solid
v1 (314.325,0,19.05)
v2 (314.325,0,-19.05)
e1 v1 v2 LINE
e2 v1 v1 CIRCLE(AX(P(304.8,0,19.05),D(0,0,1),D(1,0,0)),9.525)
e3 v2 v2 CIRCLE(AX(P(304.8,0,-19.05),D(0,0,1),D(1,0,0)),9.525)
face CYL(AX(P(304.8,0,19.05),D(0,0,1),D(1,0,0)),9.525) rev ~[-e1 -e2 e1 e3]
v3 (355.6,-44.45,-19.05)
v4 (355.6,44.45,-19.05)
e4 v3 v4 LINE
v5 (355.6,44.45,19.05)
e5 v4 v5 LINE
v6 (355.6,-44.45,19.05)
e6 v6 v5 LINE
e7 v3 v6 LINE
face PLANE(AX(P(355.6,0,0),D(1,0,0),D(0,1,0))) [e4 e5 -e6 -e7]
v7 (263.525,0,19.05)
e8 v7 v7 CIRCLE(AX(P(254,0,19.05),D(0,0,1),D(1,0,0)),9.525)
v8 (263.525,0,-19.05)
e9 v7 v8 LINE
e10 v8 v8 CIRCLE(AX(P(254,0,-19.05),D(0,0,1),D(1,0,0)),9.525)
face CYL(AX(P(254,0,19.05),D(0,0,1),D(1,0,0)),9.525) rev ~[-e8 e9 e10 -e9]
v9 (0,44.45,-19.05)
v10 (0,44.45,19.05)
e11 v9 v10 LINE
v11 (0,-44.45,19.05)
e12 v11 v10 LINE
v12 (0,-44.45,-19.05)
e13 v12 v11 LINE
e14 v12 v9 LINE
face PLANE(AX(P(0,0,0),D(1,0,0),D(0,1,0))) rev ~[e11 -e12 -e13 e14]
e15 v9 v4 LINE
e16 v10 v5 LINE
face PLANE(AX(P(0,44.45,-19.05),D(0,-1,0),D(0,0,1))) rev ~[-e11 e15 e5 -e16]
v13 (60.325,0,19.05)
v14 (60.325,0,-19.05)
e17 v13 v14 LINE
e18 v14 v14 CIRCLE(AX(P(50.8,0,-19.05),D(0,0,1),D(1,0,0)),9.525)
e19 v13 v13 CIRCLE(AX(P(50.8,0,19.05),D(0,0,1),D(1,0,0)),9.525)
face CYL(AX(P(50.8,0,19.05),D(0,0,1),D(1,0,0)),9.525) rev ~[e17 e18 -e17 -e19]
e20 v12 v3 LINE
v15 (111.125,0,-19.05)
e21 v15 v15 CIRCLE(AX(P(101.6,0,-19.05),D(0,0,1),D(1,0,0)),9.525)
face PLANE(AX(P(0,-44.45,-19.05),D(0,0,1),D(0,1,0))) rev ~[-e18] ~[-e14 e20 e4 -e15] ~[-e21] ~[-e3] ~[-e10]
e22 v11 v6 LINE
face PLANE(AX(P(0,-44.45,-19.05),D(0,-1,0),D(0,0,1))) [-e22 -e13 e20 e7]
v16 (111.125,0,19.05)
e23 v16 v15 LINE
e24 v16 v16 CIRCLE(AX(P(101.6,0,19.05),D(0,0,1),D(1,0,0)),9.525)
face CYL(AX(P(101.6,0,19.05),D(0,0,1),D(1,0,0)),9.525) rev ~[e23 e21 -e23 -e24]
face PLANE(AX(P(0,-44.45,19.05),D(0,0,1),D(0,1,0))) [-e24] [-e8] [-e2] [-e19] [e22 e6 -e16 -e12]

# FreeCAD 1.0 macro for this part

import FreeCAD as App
import Part
import Sketcher
from FreeCAD import Vector
Q = App.Units.Quantity

doc = App.newDocument("Part")
params = doc.addObject("Spreadsheet::Sheet", "Params")
for row, (alias, value) in enumerate([
    ("sketch1_width", "3.5 in"),
    ("sketch1_height", "1.5 in"),
    ("pad1_length", "14 in"),
    ("sketch2_diameter", "0.75 in"),
], start=1):
    params.set(f"A{row}", alias)
    params.set(f"B{row}", "=" + value)
    params.setAlias(f"B{row}", alias)

body = doc.addObject("PartDesign::Body", "Body")

sketch1 = doc.addObject("Sketcher::SketchObject", "Sketch")
body.addObject(sketch1)
sketch1.AttachmentSupport = (doc.YZ_Plane, [""])
sketch1.MapMode = "FlatFace"
sketch1.addGeometry(Part.LineSegment(Vector(-44, 19, 0), Vector(-44, -19, 0)), False)
sketch1.addGeometry(Part.LineSegment(Vector(-44, -19, 0), Vector(44, -19, 0)), False)
sketch1.addGeometry(Part.LineSegment(Vector(44, -19, 0), Vector(44, 19, 0)), False)
sketch1.addGeometry(Part.LineSegment(Vector(44, 19, 0), Vector(-44, 19, 0)), False)
sketch1.addConstraint(Sketcher.Constraint("Coincident", 0, 2, 1, 1))
sketch1.addConstraint(Sketcher.Constraint("Coincident", 1, 2, 2, 1))
sketch1.addConstraint(Sketcher.Constraint("Coincident", 2, 2, 3, 1))
sketch1.addConstraint(Sketcher.Constraint("Coincident", 3, 2, 0, 1))
sketch1.addConstraint(Sketcher.Constraint("Vertical", 0))
sketch1.addConstraint(Sketcher.Constraint("Horizontal", 1))
sketch1.addConstraint(Sketcher.Constraint("Vertical", 2))
sketch1.addConstraint(Sketcher.Constraint("Horizontal", 3))
sketch1.addConstraint(Sketcher.Constraint("Symmetric", 0, 2, 2, 2, -1, 1))
sketch1.addConstraint(Sketcher.Constraint("DistanceX", 1, 1, 1, 2, Q("3.5 in")))
sketch1.addConstraint(Sketcher.Constraint("DistanceY", 0, 2, 0, 1, Q("1.5 in")))
sketch1.setExpression("Constraints[9]", "Params.sketch1_width")
sketch1.setExpression("Constraints[10]", "Params.sketch1_height")
pad1 = doc.addObject("PartDesign::Pad", "Pad")
body.addObject(pad1)
pad1.Profile = sketch1
pad1.setExpression("Length", "Params.pad1_length")

sketch2 = doc.addObject("Sketcher::SketchObject", "Sketch001")
body.addObject(sketch2)
sketch2.AttachmentSupport = (doc.XY_Plane, [""])
sketch2.MapMode = "FlatFace"
sketch2.AttachmentOffset = App.Placement(Vector(0, 0, 0.75 * 25.4), App.Rotation())
sketch2.addGeometry(Part.Circle(Vector(51, 0, 0), Vector(0, 0, 1), 10), False)
sketch2.addGeometry(Part.Circle(Vector(102, 0, 0), Vector(0, 0, 1), 10), False)
sketch2.addGeometry(Part.Circle(Vector(254, 0, 0), Vector(0, 0, 1), 10), False)
sketch2.addGeometry(Part.Circle(Vector(305, 0, 0), Vector(0, 0, 1), 10), False)
sketch2.addConstraint(Sketcher.Constraint("Equal", 0, 1))
sketch2.addConstraint(Sketcher.Constraint("Equal", 1, 2))
sketch2.addConstraint(Sketcher.Constraint("Equal", 2, 3))
sketch2.addConstraint(Sketcher.Constraint("PointOnObject", 0, 3, -1))
sketch2.addConstraint(Sketcher.Constraint("PointOnObject", 1, 3, -1))
sketch2.addConstraint(Sketcher.Constraint("PointOnObject", 2, 3, -1))
sketch2.addConstraint(Sketcher.Constraint("PointOnObject", 3, 3, -1))
sketch2.addConstraint(Sketcher.Constraint("Diameter", 0, Q("0.75 in")))
sketch2.addConstraint(Sketcher.Constraint("DistanceX", -1, 1, 0, 3, Q("2 in")))
sketch2.addConstraint(Sketcher.Constraint("DistanceX", -1, 1, 1, 3, Q("4 in")))
sketch2.addConstraint(Sketcher.Constraint("DistanceX", -1, 1, 2, 3, Q("10 in")))
sketch2.addConstraint(Sketcher.Constraint("DistanceX", -1, 1, 3, 3, Q("12 in")))
sketch2.setExpression("Constraints[7]", "Params.sketch2_diameter")
pocket1 = doc.addObject("PartDesign::Pocket", "Pocket")
body.addObject(pocket1)
pocket1.Profile = sketch2
pocket1.Type = "ThroughAll"

doc.recompute()
